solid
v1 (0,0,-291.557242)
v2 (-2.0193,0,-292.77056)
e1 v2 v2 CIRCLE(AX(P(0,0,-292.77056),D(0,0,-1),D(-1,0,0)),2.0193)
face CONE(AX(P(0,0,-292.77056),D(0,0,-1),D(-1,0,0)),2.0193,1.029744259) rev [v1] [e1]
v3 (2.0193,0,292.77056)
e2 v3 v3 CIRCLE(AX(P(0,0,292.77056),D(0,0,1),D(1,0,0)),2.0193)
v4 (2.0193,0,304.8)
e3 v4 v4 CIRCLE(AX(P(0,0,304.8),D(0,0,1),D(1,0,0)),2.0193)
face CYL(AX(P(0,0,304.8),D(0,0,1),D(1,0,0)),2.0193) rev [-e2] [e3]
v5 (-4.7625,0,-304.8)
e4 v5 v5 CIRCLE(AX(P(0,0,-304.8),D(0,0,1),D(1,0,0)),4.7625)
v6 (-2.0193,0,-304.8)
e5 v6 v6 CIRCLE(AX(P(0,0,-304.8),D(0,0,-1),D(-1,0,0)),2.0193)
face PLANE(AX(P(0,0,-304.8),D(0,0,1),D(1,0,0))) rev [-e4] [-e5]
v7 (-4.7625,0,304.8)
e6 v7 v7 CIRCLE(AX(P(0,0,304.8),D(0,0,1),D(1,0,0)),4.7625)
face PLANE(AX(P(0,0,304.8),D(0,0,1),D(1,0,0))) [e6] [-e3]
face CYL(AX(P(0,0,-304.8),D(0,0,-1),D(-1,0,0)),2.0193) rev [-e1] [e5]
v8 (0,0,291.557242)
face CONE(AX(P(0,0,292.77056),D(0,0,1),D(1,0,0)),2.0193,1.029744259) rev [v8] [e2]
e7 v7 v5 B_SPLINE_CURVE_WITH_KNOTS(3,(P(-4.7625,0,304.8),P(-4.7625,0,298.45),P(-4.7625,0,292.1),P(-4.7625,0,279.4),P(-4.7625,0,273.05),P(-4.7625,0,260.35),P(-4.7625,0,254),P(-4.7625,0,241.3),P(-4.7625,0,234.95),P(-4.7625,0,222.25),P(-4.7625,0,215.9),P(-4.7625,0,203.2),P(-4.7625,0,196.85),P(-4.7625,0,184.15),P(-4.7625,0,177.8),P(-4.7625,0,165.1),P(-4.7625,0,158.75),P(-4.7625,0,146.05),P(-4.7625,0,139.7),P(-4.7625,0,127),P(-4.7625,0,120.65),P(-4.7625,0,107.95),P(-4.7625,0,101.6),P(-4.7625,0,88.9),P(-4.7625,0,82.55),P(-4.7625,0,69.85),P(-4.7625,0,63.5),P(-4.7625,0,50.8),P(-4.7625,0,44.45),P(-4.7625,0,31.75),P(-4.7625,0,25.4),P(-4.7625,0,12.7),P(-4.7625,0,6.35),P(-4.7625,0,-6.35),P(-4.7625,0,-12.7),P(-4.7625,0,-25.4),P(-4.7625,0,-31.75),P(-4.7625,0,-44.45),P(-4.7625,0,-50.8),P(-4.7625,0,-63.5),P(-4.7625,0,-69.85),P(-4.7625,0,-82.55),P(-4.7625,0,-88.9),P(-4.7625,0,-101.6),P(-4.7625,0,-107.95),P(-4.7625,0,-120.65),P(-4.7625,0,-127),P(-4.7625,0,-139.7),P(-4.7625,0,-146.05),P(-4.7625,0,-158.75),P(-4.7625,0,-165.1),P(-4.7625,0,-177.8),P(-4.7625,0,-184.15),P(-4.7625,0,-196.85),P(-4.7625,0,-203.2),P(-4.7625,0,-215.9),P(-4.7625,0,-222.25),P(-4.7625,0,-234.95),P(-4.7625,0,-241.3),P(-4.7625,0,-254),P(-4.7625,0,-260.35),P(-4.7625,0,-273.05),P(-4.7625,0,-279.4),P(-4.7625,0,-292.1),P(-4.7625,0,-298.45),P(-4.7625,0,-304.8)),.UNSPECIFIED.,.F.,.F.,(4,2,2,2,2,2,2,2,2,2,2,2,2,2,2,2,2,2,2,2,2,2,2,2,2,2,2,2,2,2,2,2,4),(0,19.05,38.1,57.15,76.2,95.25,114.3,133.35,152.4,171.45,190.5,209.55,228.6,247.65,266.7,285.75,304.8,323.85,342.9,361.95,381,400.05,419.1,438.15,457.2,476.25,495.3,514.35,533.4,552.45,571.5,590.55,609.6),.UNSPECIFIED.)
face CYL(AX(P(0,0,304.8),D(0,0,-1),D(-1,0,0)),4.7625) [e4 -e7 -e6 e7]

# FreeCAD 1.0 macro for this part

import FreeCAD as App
import Part
import Sketcher
Q = App.Units.Quantity

doc = App.newDocument("Part")
params = doc.addObject("Spreadsheet::Sheet", "Params")
for row, (alias, value) in enumerate([
    ("sketch1_diameter", "0.375 in"),
    ("pad1_length", "24 in"),
    ("sketch2_diameter", "0.159 in"),
    ("hole_diameter", "0.159 in"),
    ("hole_depth", "0.4736 in"),
    ("sketch3_diameter", "0.159 in"),
    ("hole2_diameter", "0.159 in"),
    ("hole2_depth", "0.4736 in"),
], start=1):
    params.set(f"A{row}", alias)
    params.set(f"B{row}", "=" + value)
    params.setAlias(f"B{row}", alias)

body = doc.addObject("PartDesign::Body", "Body")

# Sketch on XY plane
sketch1 = doc.addObject("Sketcher::SketchObject", "Sketch")
body.addObject(sketch1)
sketch1.AttachmentSupport = (doc.XY_Plane, [""])
sketch1.MapMode = "FlatFace"
sketch1.addGeometry(Part.Circle(App.Vector(0, 0, 0), App.Vector(0, 0, 1), 4.7625), False)
sketch1.addConstraint([
    Sketcher.Constraint("Coincident", 0, 3, -1, 1),
    Sketcher.Constraint("Diameter", 0, Q("0.375 in")),
])
sketch1.setExpression("Constraints[1]", "Params.sketch1_diameter")
pad1 = doc.addObject("PartDesign::Pad", "Pad")
body.addObject(pad1)
pad1.Profile = sketch1
pad1.setExpression("Length", "Params.pad1_length")
pad1.Midplane = True

# Sketch on XY plane
sketch2 = doc.addObject("Sketcher::SketchObject", "Sketch001")
body.addObject(sketch2)
sketch2.AttachmentSupport = (doc.XY_Plane, [""])
sketch2.MapMode = "FlatFace"
sketch2.AttachmentOffset = App.Placement(App.Vector(0, 0, -12 * 25.4), App.Rotation())
sketch2.addGeometry(Part.Circle(App.Vector(0, 0, 0), App.Vector(0, 0, 1), 2.0193), False)
sketch2.addConstraint([
    Sketcher.Constraint("Coincident", 0, 3, -1, 1),
    Sketcher.Constraint("Diameter", 0, Q("0.159 in")),
])
sketch2.setExpression("Constraints[1]", "Params.sketch2_diameter")
doc.recompute()
hole = doc.addObject("PartDesign::Hole", "Hole")
body.addObject(hole)
hole.Profile = sketch2
hole.ThreadType = "None"
hole.setExpression("Diameter", "Params.hole_diameter")
hole.DepthType = "Dimension"
hole.setExpression("Depth", "Params.hole_depth")
hole.DrillPoint = "Angled"
hole.DrillPointAngle = 118
hole.Reversed = True

# Sketch on XY plane
sketch3 = doc.addObject("Sketcher::SketchObject", "Sketch002")
body.addObject(sketch3)
sketch3.AttachmentSupport = (doc.XY_Plane, [""])
sketch3.MapMode = "FlatFace"
sketch3.AttachmentOffset = App.Placement(App.Vector(0, 0, 12 * 25.4), App.Rotation())
sketch3.addGeometry(Part.Circle(App.Vector(0, 0, 0), App.Vector(0, 0, 1), 2.0193), False)
sketch3.addConstraint([
    Sketcher.Constraint("Coincident", 0, 3, -1, 1),
    Sketcher.Constraint("Diameter", 0, Q("0.159 in")),
])
sketch3.setExpression("Constraints[1]", "Params.sketch3_diameter")
doc.recompute()
hole2 = doc.addObject("PartDesign::Hole", "Hole001")
body.addObject(hole2)
hole2.Profile = sketch3
hole2.ThreadType = "None"
hole2.setExpression("Diameter", "Params.hole2_diameter")
hole2.DepthType = "Dimension"
hole2.setExpression("Depth", "Params.hole2_depth")
hole2.DrillPoint = "Angled"
hole2.DrillPointAngle = 118

doc.recompute()
